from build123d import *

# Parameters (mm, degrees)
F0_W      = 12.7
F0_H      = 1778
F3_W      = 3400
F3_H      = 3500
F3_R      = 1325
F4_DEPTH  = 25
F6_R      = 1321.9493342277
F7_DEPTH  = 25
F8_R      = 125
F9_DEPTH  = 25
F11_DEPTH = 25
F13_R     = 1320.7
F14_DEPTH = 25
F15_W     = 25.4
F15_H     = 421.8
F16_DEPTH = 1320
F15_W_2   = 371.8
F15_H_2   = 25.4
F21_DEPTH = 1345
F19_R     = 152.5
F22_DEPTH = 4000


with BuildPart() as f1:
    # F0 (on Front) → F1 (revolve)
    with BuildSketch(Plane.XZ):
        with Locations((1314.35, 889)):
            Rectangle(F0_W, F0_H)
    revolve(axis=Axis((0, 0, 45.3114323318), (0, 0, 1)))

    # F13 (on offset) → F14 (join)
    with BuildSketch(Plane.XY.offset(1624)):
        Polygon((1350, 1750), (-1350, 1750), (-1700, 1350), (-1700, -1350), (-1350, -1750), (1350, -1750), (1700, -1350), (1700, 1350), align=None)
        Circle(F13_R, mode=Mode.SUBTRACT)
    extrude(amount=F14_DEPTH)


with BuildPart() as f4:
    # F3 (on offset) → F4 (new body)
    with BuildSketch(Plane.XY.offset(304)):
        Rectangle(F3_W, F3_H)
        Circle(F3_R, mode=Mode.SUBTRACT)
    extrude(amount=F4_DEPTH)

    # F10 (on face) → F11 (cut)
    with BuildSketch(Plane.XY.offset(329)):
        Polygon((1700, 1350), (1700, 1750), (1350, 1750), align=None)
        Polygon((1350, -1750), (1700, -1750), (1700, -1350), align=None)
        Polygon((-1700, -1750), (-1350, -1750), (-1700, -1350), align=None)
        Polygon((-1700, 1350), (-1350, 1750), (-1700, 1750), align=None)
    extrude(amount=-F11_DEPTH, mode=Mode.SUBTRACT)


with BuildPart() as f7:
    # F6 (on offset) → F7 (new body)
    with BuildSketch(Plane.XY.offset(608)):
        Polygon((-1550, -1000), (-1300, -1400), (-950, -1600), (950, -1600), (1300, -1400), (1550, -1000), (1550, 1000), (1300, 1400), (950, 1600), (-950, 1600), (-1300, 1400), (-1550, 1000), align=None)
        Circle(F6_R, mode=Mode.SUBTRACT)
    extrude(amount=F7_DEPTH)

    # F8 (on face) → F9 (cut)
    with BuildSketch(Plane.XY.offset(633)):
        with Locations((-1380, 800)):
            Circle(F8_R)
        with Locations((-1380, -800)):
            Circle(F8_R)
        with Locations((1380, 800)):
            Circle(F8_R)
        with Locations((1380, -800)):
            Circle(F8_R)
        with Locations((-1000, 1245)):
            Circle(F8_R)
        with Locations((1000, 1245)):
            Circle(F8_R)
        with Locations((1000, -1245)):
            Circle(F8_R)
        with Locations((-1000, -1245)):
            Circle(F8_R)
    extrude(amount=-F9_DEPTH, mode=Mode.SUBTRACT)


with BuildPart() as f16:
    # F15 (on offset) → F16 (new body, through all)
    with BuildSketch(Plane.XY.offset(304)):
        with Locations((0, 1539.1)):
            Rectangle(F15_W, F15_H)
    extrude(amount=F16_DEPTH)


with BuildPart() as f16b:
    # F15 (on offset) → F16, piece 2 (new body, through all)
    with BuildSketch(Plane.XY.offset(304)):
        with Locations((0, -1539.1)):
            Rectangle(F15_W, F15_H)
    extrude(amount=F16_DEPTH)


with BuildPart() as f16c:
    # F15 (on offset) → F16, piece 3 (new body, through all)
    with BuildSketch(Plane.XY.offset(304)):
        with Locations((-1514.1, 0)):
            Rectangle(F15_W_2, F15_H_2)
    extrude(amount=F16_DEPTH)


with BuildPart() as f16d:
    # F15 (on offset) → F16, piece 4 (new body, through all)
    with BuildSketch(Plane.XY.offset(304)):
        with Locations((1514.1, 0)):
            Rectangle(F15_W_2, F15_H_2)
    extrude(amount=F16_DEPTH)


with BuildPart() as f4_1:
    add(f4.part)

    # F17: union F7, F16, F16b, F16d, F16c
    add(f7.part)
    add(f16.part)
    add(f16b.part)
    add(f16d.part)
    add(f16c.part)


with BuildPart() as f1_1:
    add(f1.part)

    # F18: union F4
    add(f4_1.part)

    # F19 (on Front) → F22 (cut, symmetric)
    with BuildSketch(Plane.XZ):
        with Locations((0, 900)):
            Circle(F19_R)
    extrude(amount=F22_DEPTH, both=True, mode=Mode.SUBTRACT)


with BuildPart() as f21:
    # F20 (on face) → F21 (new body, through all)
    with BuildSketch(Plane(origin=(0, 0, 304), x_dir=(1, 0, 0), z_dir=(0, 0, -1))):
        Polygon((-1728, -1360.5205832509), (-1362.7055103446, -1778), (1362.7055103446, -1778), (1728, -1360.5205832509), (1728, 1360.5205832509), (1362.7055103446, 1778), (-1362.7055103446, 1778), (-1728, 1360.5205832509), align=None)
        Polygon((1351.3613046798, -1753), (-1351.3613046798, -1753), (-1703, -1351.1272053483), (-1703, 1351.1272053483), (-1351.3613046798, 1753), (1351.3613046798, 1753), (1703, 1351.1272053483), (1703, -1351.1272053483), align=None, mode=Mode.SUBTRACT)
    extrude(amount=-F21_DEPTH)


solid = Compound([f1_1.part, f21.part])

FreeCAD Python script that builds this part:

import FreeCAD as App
import Part
import Sketcher
from FreeCAD import Vector
Q = App.Units.Quantity


def add_polygon(sketch, points):
    """Adds a closed chain of lines whose ends are joined by coincident constraints."""
    first, n = sketch.GeometryCount, len(points)
    for a, b in zip(points, points[1:] + points[:1]):
        sketch.addGeometry(Part.LineSegment(App.Vector(*a, 0), App.Vector(*b, 0)), False)
    for i in range(n):
        sketch.addConstraint(Sketcher.Constraint("Coincident", first + i, 2, first + (i + 1) % n, 1))

doc = App.newDocument("Part")
body = doc.addObject("PartDesign::Body", "Body")

sketch1 = body.newObject("Sketcher::SketchObject", "Sketch")
sketch1.AttachmentSupport = (doc.getObject("XZ_Plane"), [""])
sketch1.MapMode = "FlatFace"
add_polygon(sketch1, [(1308, 1778), (1308, 0), (1320.7, 0), (1320.7, 1778)])
sketch1.addConstraint([
    Sketcher.Constraint("Vertical", 0),
    Sketcher.Constraint("Horizontal", 1),
    Sketcher.Constraint("Vertical", 2),
    Sketcher.Constraint("Horizontal", 3),
    Sketcher.Constraint("PointOnObject", 0, 2, -1),
    Sketcher.Constraint("DistanceY", 0, 2, 0, 1, Q("1778 mm")),
    Sketcher.Constraint("DistanceX", 1, 1, 1, 2, Q("12.7 mm")),
    Sketcher.Constraint("DistanceX", -1, 1, 0, 2, Q("1308 mm")),
])
revolution = body.newObject("PartDesign::Revolution", "Revolution")
revolution.Profile = sketch1
revolution.ReferenceAxis = (sketch1, ["V_Axis"])
revolution.Angle = 360

sketch2 = body.newObject("Sketcher::SketchObject", "Sketch001")
sketch2.AttachmentSupport = (doc.getObject("XY_Plane"), [""])
sketch2.MapMode = "FlatFace"
sketch2.AttachmentOffset = App.Placement(Vector(0, 0, 1624), App.Rotation())
add_polygon(sketch2, [(1350, 1750), (-1350, 1750), (-1700, 1350), (-1700, -1350), (-1350, -1750), (1350, -1750), (1700, -1350), (1700, 1350)])
sketch2.addGeometry(Part.Circle(Vector(0, 0, 0), Vector(0, 0, 1), 1320.7), False)
sketch2.addConstraint([
    Sketcher.Constraint("Horizontal", 0),
    Sketcher.Constraint("Vertical", 2),
    Sketcher.Constraint("Horizontal", 4),
    Sketcher.Constraint("Vertical", 6),
    Sketcher.Constraint("Coincident", 8, 3, -1, 1),
    Sketcher.Constraint("Symmetric", 0, 2, 4, 2, -1, 1),
    Sketcher.Constraint("Symmetric", 1, 2, 5, 2, -1, 1),
    Sketcher.Constraint("Parallel", 3, 7),
    Sketcher.Constraint("Horizontal", 2, 2, 5, 2),
    Sketcher.Constraint("Horizontal", 1, 2, 6, 2),
    Sketcher.Constraint("Vertical", 0, 2, 3, 2),
    Sketcher.Constraint("Equal", 4, 2),
    Sketcher.Constraint("Diameter", 8, Q("2641.4 mm")),
    Sketcher.Constraint("DistanceX", 0, 2, 0, 1, Q("2700 mm")),
    Sketcher.Constraint("DistanceY", -1, 1, 0, 2, Q("1750 mm")),
    Sketcher.Constraint("DistanceX", 1, 2, -1, 1, Q("1700 mm")),
])
pad1 = body.newObject("PartDesign::Pad", "Pad")
pad1.Profile = sketch2
pad1.Length = 25
body2 = doc.addObject("PartDesign::Body", "Body001")

sketch3 = body2.newObject("Sketcher::SketchObject", "Sketch002")
sketch3.AttachmentSupport = (doc.getObject("XY_Plane001"), [""])
sketch3.MapMode = "FlatFace"
sketch3.AttachmentOffset = App.Placement(Vector(0, 0, 304), App.Rotation())
add_polygon(sketch3, [(-1700, 1750), (-1700, -1750), (1700, -1750), (1700, 1750)])
sketch3.addGeometry(Part.Circle(Vector(0, 0, 0), Vector(0, 0, 1), 1325), False)
sketch3.addConstraint([
    Sketcher.Constraint("Vertical", 0),
    Sketcher.Constraint("Horizontal", 1),
    Sketcher.Constraint("Vertical", 2),
    Sketcher.Constraint("Horizontal", 3),
    Sketcher.Constraint("Coincident", 4, 3, -1, 1),
    Sketcher.Constraint("Symmetric", 0, 2, 2, 2, -1, 1),
    Sketcher.Constraint("Diameter", 4, Q("2650 mm")),
    Sketcher.Constraint("DistanceX", 1, 1, 1, 2, Q("3400 mm")),
    Sketcher.Constraint("DistanceY", 0, 2, 0, 1, Q("3500 mm")),
])
pad2 = body2.newObject("PartDesign::Pad", "Pad001")
pad2.Profile = sketch3
pad2.Length = 25

sketch4 = body2.newObject("Sketcher::SketchObject", "Sketch003")
sketch4.AttachmentSupport = (doc.getObject("XY_Plane001"), [""])
sketch4.MapMode = "FlatFace"
sketch4.AttachmentOffset = App.Placement(Vector(0, 0, 329), App.Rotation())
add_polygon(sketch4, [(1700, 1350), (1700, 1750), (1350, 1750)])
add_polygon(sketch4, [(1350, -1750), (1700, -1750), (1700, -1350)])
add_polygon(sketch4, [(-1700, -1750), (-1350, -1750), (-1700, -1350)])
add_polygon(sketch4, [(-1700, 1350), (-1350, 1750), (-1700, 1750)])
sketch4.addConstraint([
    Sketcher.Constraint("Vertical", 0),
    Sketcher.Constraint("Horizontal", 1),
    Sketcher.Constraint("Horizontal", 3),
    Sketcher.Constraint("Vertical", 4),
    Sketcher.Constraint("Horizontal", 6),
    Sketcher.Constraint("Vertical", 8),
    Sketcher.Constraint("Horizontal", 10),
    Sketcher.Constraint("Vertical", 11),
    Sketcher.Constraint("Symmetric", 1, 2, 6, 2, -1, 1),
    Sketcher.Constraint("Symmetric", 2, 2, 7, 2, -1, 1),
    Sketcher.Constraint("Symmetric", 5, 2, 9, 2, -1, 1),
    Sketcher.Constraint("Symmetric", 4, 2, 11, 2, -1, 1),
    Sketcher.Constraint("Symmetric", 5, 2, 6, 2, -2),
    Sketcher.Constraint("Symmetric", 4, 2, 7, 2, -2),
    Sketcher.Constraint("DistanceX", 1, 2, 1, 1, Q("350 mm")),
    Sketcher.Constraint("DistanceY", 0, 1, 0, 2, Q("400 mm")),
    Sketcher.Constraint("DistanceX", -1, 1, 0, 2, Q("1700 mm")),
    Sketcher.Constraint("DistanceY", -1, 1, 0, 2, Q("1750 mm")),
])
pocket1 = body2.newObject("PartDesign::Pocket", "Pocket")
pocket1.Profile = sketch4
pocket1.Length = 25
body3 = doc.addObject("PartDesign::Body", "Body002")

sketch5 = body3.newObject("Sketcher::SketchObject", "Sketch004")
sketch5.AttachmentSupport = (doc.getObject("XY_Plane002"), [""])
sketch5.MapMode = "FlatFace"
sketch5.AttachmentOffset = App.Placement(Vector(0, 0, 608), App.Rotation())
add_polygon(sketch5, [(-1550, -1000), (-1300, -1400), (-950, -1600), (950, -1600), (1300, -1400), (1550, -1000), (1550, 1000), (1300, 1400), (950, 1600), (-950, 1600), (-1300, 1400), (-1550, 1000)])
sketch5.addGeometry(Part.Circle(Vector(0, 0, 0), Vector(0, 0, 1), 1321.949334), False)
sketch5.addConstraint([
    Sketcher.Constraint("Horizontal", 2),
    Sketcher.Constraint("Vertical", 5),
    Sketcher.Constraint("Horizontal", 8),
    Sketcher.Constraint("Vertical", 11),
    Sketcher.Constraint("Coincident", 12, 3, -1, 1),
    Sketcher.Constraint("Symmetric", 0, 2, 6, 2, -1, 1),
    Sketcher.Constraint("Symmetric", 1, 2, 7, 2, -1, 1),
    Sketcher.Constraint("Symmetric", 3, 2, 9, 2, -1, 1),
    Sketcher.Constraint("Symmetric", 4, 2, 10, 2, -1, 1),
    Sketcher.Constraint("Symmetric", 0, 2, 3, 2, -2),
    Sketcher.Constraint("Parallel", 0, 6),
    Sketcher.Constraint("Parallel", 3, 9),
    Sketcher.Constraint("Horizontal", 5, 2, 10, 2),
    Sketcher.Constraint("Vertical", 2, 2, 7, 2),
    Sketcher.Constraint("DistanceX", 2, 1, 2, 2, Q("1900 mm")),
    Sketcher.Constraint("DistanceY", 5, 1, 5, 2, Q("2000 mm")),
    Sketcher.Constraint("DistanceX", 0, 2, -1, 1, Q("1300 mm")),
    Sketcher.Constraint("DistanceY", 0, 2, -1, 1, Q("1400 mm")),
    Sketcher.Constraint("DistanceY", 1, 2, -1, 1, Q("1600 mm")),
    Sketcher.Constraint("DistanceX", -1, 1, 4, 2, Q("1550 mm")),
    Sketcher.Constraint("Diameter", 12, Q("2643.898668 mm")),
])
pad3 = body3.newObject("PartDesign::Pad", "Pad002")
pad3.Profile = sketch5
pad3.Length = 25

sketch6 = body3.newObject("Sketcher::SketchObject", "Sketch005")
sketch6.AttachmentSupport = (doc.getObject("XY_Plane002"), [""])
sketch6.MapMode = "FlatFace"
sketch6.AttachmentOffset = App.Placement(Vector(0, 0, 633), App.Rotation())
sketch6.addGeometry([
    Part.Circle(Vector(-1380, 800, 0), Vector(0, 0, 1), 125),
    Part.Circle(Vector(-1380, -800, 0), Vector(0, 0, 1), 125),
    Part.Circle(Vector(1380, 800, 0), Vector(0, 0, 1), 125),
    Part.Circle(Vector(1380, -800, 0), Vector(0, 0, 1), 125),
    Part.Circle(Vector(-1000, 1245, 0), Vector(0, 0, 1), 125),
    Part.Circle(Vector(1000, 1245, 0), Vector(0, 0, 1), 125),
    Part.Circle(Vector(1000, -1245, 0), Vector(0, 0, 1), 125),
    Part.Circle(Vector(-1000, -1245, 0), Vector(0, 0, 1), 125),
], False)
sketch6.addConstraint([
    Sketcher.Constraint("Equal", 0, 1),
    Sketcher.Constraint("Equal", 1, 2),
    Sketcher.Constraint("Equal", 2, 3),
    Sketcher.Constraint("Equal", 3, 4),
    Sketcher.Constraint("Equal", 4, 5),
    Sketcher.Constraint("Equal", 5, 6),
    Sketcher.Constraint("Equal", 6, 7),
    Sketcher.Constraint("Symmetric", 1, 3, 2, 3, -1, 1),
    Sketcher.Constraint("Symmetric", 0, 3, 3, 3, -1, 1),
    Sketcher.Constraint("Symmetric", 4, 3, 6, 3, -1, 1),
    Sketcher.Constraint("Symmetric", 5, 3, 7, 3, -1, 1),
    Sketcher.Constraint("Symmetric", 0, 3, 2, 3, -2),
    Sketcher.Constraint("Symmetric", 4, 3, 5, 3, -2),
    Sketcher.Constraint("Diameter", 0, Q("250 mm")),
    Sketcher.Constraint("DistanceX", 0, 3, -1, 1, Q("1380 mm")),
    Sketcher.Constraint("DistanceY", -1, 1, 0, 3, Q("800 mm")),
    Sketcher.Constraint("DistanceX", 4, 3, -1, 1, Q("1000 mm")),
    Sketcher.Constraint("DistanceY", -1, 1, 4, 3, Q("1245 mm")),
])
pocket2 = body3.newObject("PartDesign::Pocket", "Pocket001")
pocket2.Profile = sketch6
pocket2.Length = 25
body4 = doc.addObject("PartDesign::Body", "Body003")

sketch7 = body4.newObject("Sketcher::SketchObject", "Sketch006")
sketch7.AttachmentSupport = (doc.getObject("XY_Plane003"), [""])
sketch7.MapMode = "FlatFace"
sketch7.AttachmentOffset = App.Placement(Vector(0, 0, 304), App.Rotation())
add_polygon(sketch7, [(-12.7, 1750), (-12.7, 1328.2), (12.7, 1328.2), (12.7, 1750)])
sketch7.addConstraint([
    Sketcher.Constraint("Vertical", 0),
    Sketcher.Constraint("Horizontal", 1),
    Sketcher.Constraint("Vertical", 2),
    Sketcher.Constraint("Horizontal", 3),
    Sketcher.Constraint("DistanceX", 1, 1, 1, 2, Q("25.4 mm")),
    Sketcher.Constraint("DistanceY", 0, 2, 0, 1, Q("421.8 mm")),
    Sketcher.Constraint("DistanceY", -1, 1, 2, 2, Q("1750 mm")),
    Sketcher.Constraint("DistanceX", 0, 2, -1, 1, Q("12.7 mm")),
])
pad4 = body4.newObject("PartDesign::Pad", "Pad003")
pad4.Profile = sketch7
pad4.Length = 1320
body5 = doc.addObject("PartDesign::Body", "Body004")

sketch8 = body5.newObject("Sketcher::SketchObject", "Sketch007")
sketch8.AttachmentSupport = (doc.getObject("XY_Plane004"), [""])
sketch8.MapMode = "FlatFace"
sketch8.AttachmentOffset = App.Placement(Vector(0, 0, 304), App.Rotation())
add_polygon(sketch8, [(-12.7, -1328.2), (-12.7, -1750), (12.7, -1750), (12.7, -1328.2)])
sketch8.addConstraint([
    Sketcher.Constraint("Vertical", 0),
    Sketcher.Constraint("Horizontal", 1),
    Sketcher.Constraint("Vertical", 2),
    Sketcher.Constraint("Horizontal", 3),
    Sketcher.Constraint("DistanceX", 1, 1, 1, 2, Q("25.4 mm")),
    Sketcher.Constraint("DistanceY", 0, 2, 0, 1, Q("421.8 mm")),
    Sketcher.Constraint("DistanceY", 0, 2, -1, 1, Q("1750 mm")),
    Sketcher.Constraint("DistanceX", 0, 2, -1, 1, Q("12.7 mm")),
])
pad5 = body5.newObject("PartDesign::Pad", "Pad004")
pad5.Profile = sketch8
pad5.Length = 1320
body6 = doc.addObject("PartDesign::Body", "Body005")

sketch9 = body6.newObject("Sketcher::SketchObject", "Sketch008")
sketch9.AttachmentSupport = (doc.getObject("XY_Plane005"), [""])
sketch9.MapMode = "FlatFace"
sketch9.AttachmentOffset = App.Placement(Vector(0, 0, 304), App.Rotation())
add_polygon(sketch9, [(-1700, 12.7), (-1700, -12.7), (-1328.2, -12.7), (-1328.2, 12.7)])
sketch9.addConstraint([
    Sketcher.Constraint("Vertical", 0),
    Sketcher.Constraint("Horizontal", 1),
    Sketcher.Constraint("Vertical", 2),
    Sketcher.Constraint("Horizontal", 3),
    Sketcher.Constraint("DistanceX", 1, 1, 1, 2, Q("371.8 mm")),
    Sketcher.Constraint("DistanceY", 0, 2, 0, 1, Q("25.4 mm")),
    Sketcher.Constraint("DistanceX", 0, 2, -1, 1, Q("1700 mm")),
    Sketcher.Constraint("DistanceY", 0, 2, -1, 1, Q("12.7 mm")),
])
pad6 = body6.newObject("PartDesign::Pad", "Pad005")
pad6.Profile = sketch9
pad6.Length = 1320
body7 = doc.addObject("PartDesign::Body", "Body006")

sketch10 = body7.newObject("Sketcher::SketchObject", "Sketch009")
sketch10.AttachmentSupport = (doc.getObject("XY_Plane006"), [""])
sketch10.MapMode = "FlatFace"
sketch10.AttachmentOffset = App.Placement(Vector(0, 0, 304), App.Rotation())
add_polygon(sketch10, [(1328.2, 12.7), (1328.2, -12.7), (1700, -12.7), (1700, 12.7)])
sketch10.addConstraint([
    Sketcher.Constraint("Vertical", 0),
    Sketcher.Constraint("Horizontal", 1),
    Sketcher.Constraint("Vertical", 2),
    Sketcher.Constraint("Horizontal", 3),
    Sketcher.Constraint("DistanceX", 1, 1, 1, 2, Q("371.8 mm")),
    Sketcher.Constraint("DistanceY", 0, 2, 0, 1, Q("25.4 mm")),
    Sketcher.Constraint("DistanceX", -1, 1, 1, 2, Q("1700 mm")),
    Sketcher.Constraint("DistanceY", 0, 2, -1, 1, Q("12.7 mm")),
])
pad7 = body7.newObject("PartDesign::Pad", "Pad006")
pad7.Profile = sketch10
pad7.Length = 1320
body2.AllowCompound = True
doc.recompute()

boolean = body2.newObject("PartDesign::Boolean", "Boolean")
boolean.Type = "Fuse"
boolean.addObjects([body3])
doc.recompute()

boolean2 = body2.newObject("PartDesign::Boolean", "Boolean001")
boolean2.Type = "Fuse"
boolean2.addObjects([body4])
doc.recompute()

boolean3 = body2.newObject("PartDesign::Boolean", "Boolean002")
boolean3.Type = "Fuse"
boolean3.addObjects([body5])
doc.recompute()

boolean4 = body2.newObject("PartDesign::Boolean", "Boolean003")
boolean4.Type = "Fuse"
boolean4.addObjects([body7])
doc.recompute()

boolean5 = body2.newObject("PartDesign::Boolean", "Boolean004")
boolean5.Type = "Fuse"
boolean5.addObjects([body6])
doc.recompute()

boolean6 = body.newObject("PartDesign::Boolean", "Boolean005")
boolean6.Type = "Fuse"
boolean6.addObjects([body2])

sketch11 = body.newObject("Sketcher::SketchObject", "Sketch010")
sketch11.AttachmentSupport = (doc.getObject("XZ_Plane"), [""])
sketch11.MapMode = "FlatFace"
sketch11.addGeometry(Part.Circle(Vector(0, 900, 0), Vector(0, 0, 1), 152.5), False)
sketch11.addConstraint([
    Sketcher.Constraint("PointOnObject", 0, 3, -2),
    Sketcher.Constraint("Diameter", 0, Q("305 mm")),
    Sketcher.Constraint("DistanceY", -1, 1, 0, 3, Q("900 mm")),
])
pocket3 = body.newObject("PartDesign::Pocket", "Pocket002")
pocket3.Profile = sketch11
pocket3.Length = 8000
pocket3.Midplane = True
body8 = doc.addObject("PartDesign::Body", "Body007")

sketch12 = body8.newObject("Sketcher::SketchObject", "Sketch011")
sketch12.AttachmentSupport = (doc.getObject("XY_Plane007"), [""])
sketch12.MapMode = "FlatFace"
sketch12.AttachmentOffset = App.Placement(Vector(0, 0, 304), App.Rotation())
add_polygon(sketch12, [(-1728, 1360.520583), (-1362.70551, 1778), (1362.70551, 1778), (1728, 1360.520583), (1728, -1360.520583), (1362.70551, -1778), (-1362.70551, -1778), (-1728, -1360.520583)])
add_polygon(sketch12, [(1703, 1351.127205), (1351.361305, 1753), (-1351.361305, 1753), (-1703, 1351.127205), (-1703, -1351.127205), (-1351.361305, -1753), (1351.361305, -1753), (1703, -1351.127205)])
sketch12.addConstraint([
    Sketcher.Constraint("Horizontal", 1),
    Sketcher.Constraint("Vertical", 3),
    Sketcher.Constraint("Horizontal", 5),
    Sketcher.Constraint("Vertical", 7),
    Sketcher.Constraint("Horizontal", 9),
    Sketcher.Constraint("Vertical", 11),
    Sketcher.Constraint("Horizontal", 13),
    Sketcher.Constraint("Vertical", 15),
    Sketcher.Constraint("Symmetric", 0, 2, 4, 2, -1, 1),
    Sketcher.Constraint("Symmetric", 2, 2, 6, 2, -1, 1),
    Sketcher.Constraint("Symmetric", 8, 2, 12, 2, -1, 1),
    Sketcher.Constraint("Symmetric", 10, 2, 14, 2, -1, 1),
    Sketcher.Constraint("Parallel", 0, 4),
    Sketcher.Constraint("Parallel", 2, 6),
    Sketcher.Constraint("Parallel", 6, 8),
    Sketcher.Constraint("Parallel", 4, 10),
    Sketcher.Constraint("Parallel", 8, 12),
    Sketcher.Constraint("Parallel", 10, 14),
    Sketcher.Constraint("Horizontal", 3, 2, 6, 2),
    Sketcher.Constraint("Horizontal", 11, 2, 14, 2),
    Sketcher.Constraint("Vertical", 1, 2, 4, 2),
    Sketcher.Constraint("DistanceY", -1, 1, 0, 2, Q("1778 mm")),
    Sketcher.Constraint("DistanceX", -1, 1, 2, 2, Q("1728 mm")),
    Sketcher.Constraint("DistanceY", -1, 1, 8, 2, Q("1753 mm")),
    Sketcher.Constraint("DistanceX", 10, 2, -1, 1, Q("1703 mm")),
    Sketcher.Constraint("Distance", 8, Q("533.995801 mm")),
    Sketcher.Constraint("DistanceX", 1, 1, 1, 2, Q("2725.411021 mm")),
    Sketcher.Constraint("DistanceX", 9, 2, 9, 1, Q("2702.722609 mm")),
])
pad8 = body8.newObject("PartDesign::Pad", "Pad007")
pad8.Profile = sketch12
pad8.Length = 1345

doc.recompute()
